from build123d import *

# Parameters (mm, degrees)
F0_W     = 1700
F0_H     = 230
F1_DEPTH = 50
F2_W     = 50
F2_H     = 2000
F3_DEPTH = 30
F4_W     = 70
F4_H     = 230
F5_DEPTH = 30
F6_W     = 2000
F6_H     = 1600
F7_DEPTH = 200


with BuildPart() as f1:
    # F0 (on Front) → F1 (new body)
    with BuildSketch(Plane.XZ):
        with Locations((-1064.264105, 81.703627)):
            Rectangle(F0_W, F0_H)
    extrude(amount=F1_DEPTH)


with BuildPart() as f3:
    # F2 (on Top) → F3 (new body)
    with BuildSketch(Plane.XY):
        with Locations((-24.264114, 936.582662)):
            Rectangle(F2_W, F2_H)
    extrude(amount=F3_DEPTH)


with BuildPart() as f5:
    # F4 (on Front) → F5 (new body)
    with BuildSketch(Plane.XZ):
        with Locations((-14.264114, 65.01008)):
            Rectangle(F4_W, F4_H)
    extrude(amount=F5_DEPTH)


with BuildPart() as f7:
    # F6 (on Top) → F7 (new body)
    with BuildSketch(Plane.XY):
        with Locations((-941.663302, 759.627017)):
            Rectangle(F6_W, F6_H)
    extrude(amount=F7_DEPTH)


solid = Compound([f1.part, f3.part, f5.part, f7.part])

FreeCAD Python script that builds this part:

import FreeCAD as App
import Part
import Sketcher


def add_polygon(sketch, points):
    """Adds a closed chain of lines whose ends are joined by coincident constraints."""
    first, n = sketch.GeometryCount, len(points)
    for a, b in zip(points, points[1:] + points[:1]):
        sketch.addGeometry(Part.LineSegment(App.Vector(*a, 0), App.Vector(*b, 0)), False)
    for i in range(n):
        sketch.addConstraint(Sketcher.Constraint("Coincident", first + i, 2, first + (i + 1) % n, 1))

doc = App.newDocument("Part")
body = doc.addObject("PartDesign::Body", "Body")

# Sketch on XZ plane
sketch1 = body.newObject("Sketcher::SketchObject", "Sketch")
sketch1.AttachmentSupport = (doc.getObject("XZ_Plane"), [""])
sketch1.MapMode = "FlatFace"
add_polygon(sketch1, [(-1914, 197), (-1914, -33), (-214, -33), (-214, 197)])  # lines 0-3
sketch1.addConstraint([
    Sketcher.Constraint("Vertical", 0),
    Sketcher.Constraint("Horizontal", 1),
    Sketcher.Constraint("Vertical", 2),
    Sketcher.Constraint("Horizontal", 3),
    Sketcher.Constraint("DistanceX", 1, 1, 1, 2, 1700.0),
    Sketcher.Constraint("DistanceY", 0, 2, 0, 1, 230.0),
    Sketcher.Constraint("DistanceX", 0, 2, -1, 1, 1914.264105),
    Sketcher.Constraint("DistanceY", 0, 2, -1, 1, 33.296373),
])
pad1 = body.newObject("PartDesign::Pad", "Pad")
pad1.Profile = sketch1
pad1.Length = 50
body2 = doc.addObject("PartDesign::Body", "Body001")

# Sketch on XY plane
sketch2 = body2.newObject("Sketcher::SketchObject", "Sketch001")
sketch2.AttachmentSupport = (doc.getObject("XY_Plane001"), [""])
sketch2.MapMode = "FlatFace"
add_polygon(sketch2, [(-49, 1937), (-49, -63), (1, -63), (1, 1937)])  # lines 0-3
sketch2.addConstraint([
    Sketcher.Constraint("Vertical", 0),
    Sketcher.Constraint("Horizontal", 1),
    Sketcher.Constraint("Vertical", 2),
    Sketcher.Constraint("Horizontal", 3),
    Sketcher.Constraint("DistanceX", 1, 1, 1, 2, 50.0),
    Sketcher.Constraint("DistanceY", 0, 2, 0, 1, 2000.0),
    Sketcher.Constraint("DistanceY", -1, 1, 2, 2, 1936.582662),
    Sketcher.Constraint("DistanceX", 0, 2, -1, 1, 49.264114),
])
pad2 = body2.newObject("PartDesign::Pad", "Pad001")
pad2.Profile = sketch2
pad2.Length = 30
body3 = doc.addObject("PartDesign::Body", "Body002")

# Sketch on XZ plane
sketch3 = body3.newObject("Sketcher::SketchObject", "Sketch002")
sketch3.AttachmentSupport = (doc.getObject("XZ_Plane002"), [""])
sketch3.MapMode = "FlatFace"
add_polygon(sketch3, [(-49, 180), (-49, -50), (21, -50), (21, 180)])  # lines 0-3
sketch3.addConstraint([
    Sketcher.Constraint("Vertical", 0),
    Sketcher.Constraint("Horizontal", 1),
    Sketcher.Constraint("Vertical", 2),
    Sketcher.Constraint("Horizontal", 3),
    Sketcher.Constraint("DistanceX", 1, 1, 1, 2, 70.0),
    Sketcher.Constraint("DistanceY", 0, 2, 0, 1, 230.0),
    Sketcher.Constraint("DistanceY", 0, 2, -1, 1, 49.98992),
    Sketcher.Constraint("DistanceX", 0, 2, -1, 1, 49.264114),
])
pad3 = body3.newObject("PartDesign::Pad", "Pad002")
pad3.Profile = sketch3
pad3.Length = 30
body4 = doc.addObject("PartDesign::Body", "Body003")

# Sketch on XY plane
sketch4 = body4.newObject("Sketcher::SketchObject", "Sketch003")
sketch4.AttachmentSupport = (doc.getObject("XY_Plane003"), [""])
sketch4.MapMode = "FlatFace"
add_polygon(sketch4, [(-1942, 1560), (-1942, -40), (58, -40), (58, 1560)])  # lines 0-3
sketch4.addConstraint([
    Sketcher.Constraint("Vertical", 0),
    Sketcher.Constraint("Horizontal", 1),
    Sketcher.Constraint("Vertical", 2),
    Sketcher.Constraint("Horizontal", 3),
    Sketcher.Constraint("DistanceX", 1, 1, 1, 2, 2000.0),
    Sketcher.Constraint("DistanceY", 0, 2, 0, 1, 1600.0),
    Sketcher.Constraint("DistanceX", 0, 2, -1, 1, 1941.663302),
    Sketcher.Constraint("DistanceY", 0, 2, -1, 1, 40.372983),
])
pad4 = body4.newObject("PartDesign::Pad", "Pad003")
pad4.Profile = sketch4
pad4.Length = 200

doc.recompute()
